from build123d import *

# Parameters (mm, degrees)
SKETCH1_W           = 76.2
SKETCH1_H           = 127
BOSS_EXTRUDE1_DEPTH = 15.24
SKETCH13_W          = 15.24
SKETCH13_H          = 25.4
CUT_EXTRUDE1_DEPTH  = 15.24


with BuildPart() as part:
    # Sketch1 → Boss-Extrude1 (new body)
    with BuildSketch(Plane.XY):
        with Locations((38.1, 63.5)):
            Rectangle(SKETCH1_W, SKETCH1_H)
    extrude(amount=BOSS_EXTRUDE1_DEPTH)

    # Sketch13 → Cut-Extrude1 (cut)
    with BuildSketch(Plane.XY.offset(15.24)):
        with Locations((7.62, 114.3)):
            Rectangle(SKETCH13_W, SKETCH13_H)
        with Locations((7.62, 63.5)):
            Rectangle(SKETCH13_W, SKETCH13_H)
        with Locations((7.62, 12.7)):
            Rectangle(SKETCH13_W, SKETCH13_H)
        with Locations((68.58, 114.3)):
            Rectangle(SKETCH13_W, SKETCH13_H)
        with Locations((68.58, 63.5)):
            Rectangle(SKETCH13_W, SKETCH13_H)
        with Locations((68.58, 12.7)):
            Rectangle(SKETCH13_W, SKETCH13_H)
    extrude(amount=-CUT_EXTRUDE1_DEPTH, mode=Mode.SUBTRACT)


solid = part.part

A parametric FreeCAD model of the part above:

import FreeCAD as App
import Part
import Sketcher

V = App.Vector
Q = App.Units.Quantity


def add_polygon(sketch, points):
    """Adds a closed chain of lines whose ends are joined by coincident constraints."""
    first, n = sketch.GeometryCount, len(points)
    for a, b in zip(points, points[1:] + points[:1]):
        sketch.addGeometry(Part.LineSegment(App.Vector(*a, 0), App.Vector(*b, 0)), False)
    for i in range(n):
        sketch.addConstraint(Sketcher.Constraint("Coincident", first + i, 2, first + (i + 1) % n, 1))

doc = App.newDocument("Part")
body = doc.addObject("PartDesign::Body", "Body")

# Sketch on XY plane
sketch1 = body.newObject("Sketcher::SketchObject", "Sketch")
sketch1.AttachmentSupport = (doc.getObject("XY_Plane"), [""])
sketch1.MapMode = "FlatFace"
add_polygon(sketch1, [(0, 127), (0, 0), (76, 0), (76, 127)])  # lines 0-3
sketch1.addConstraint([
    Sketcher.Constraint("Vertical", 0),
    Sketcher.Constraint("Horizontal", 1),
    Sketcher.Constraint("Vertical", 2),
    Sketcher.Constraint("Horizontal", 3),
    Sketcher.Constraint("Coincident", 0, 2, -1, 1),
    Sketcher.Constraint("DistanceX", 1, 1, 1, 2, Q("3 in")),
    Sketcher.Constraint("DistanceY", 0, 2, 0, 1, Q("5 in")),
])
pad1 = body.newObject("PartDesign::Pad", "Pad")
pad1.Profile = sketch1
pad1.Length = Q("0.6 in")

# Sketch on XY plane
sketch2 = body.newObject("Sketcher::SketchObject", "Sketch001")
sketch2.AttachmentSupport = (doc.getObject("XY_Plane"), [""])
sketch2.MapMode = "FlatFace"
sketch2.AttachmentOffset = App.Placement(V(0, 0, 0.6 * 25.4), App.Rotation())
add_polygon(sketch2, [(0, 127), (0, 102), (15, 102), (15, 127)])  # lines 0-3
add_polygon(sketch2, [(0, 76), (0, 51), (15, 51), (15, 76)])  # lines 4-7
add_polygon(sketch2, [(0, 25), (0, 0), (15, 0), (15, 25)])  # lines 8-11
add_polygon(sketch2, [(61, 127), (61, 102), (76, 102), (76, 127)])  # lines 12-15
add_polygon(sketch2, [(61, 76), (61, 51), (76, 51), (76, 76)])  # lines 16-19
add_polygon(sketch2, [(61, 25), (61, 0), (76, 0), (76, 25)])  # lines 20-23
sketch2.addConstraint([
    Sketcher.Constraint("Vertical", 0),
    Sketcher.Constraint("Horizontal", 1),
    Sketcher.Constraint("Vertical", 2),
    Sketcher.Constraint("Horizontal", 3),
    Sketcher.Constraint("Vertical", 4),
    Sketcher.Constraint("Horizontal", 5),
    Sketcher.Constraint("Vertical", 6),
    Sketcher.Constraint("Horizontal", 7),
    Sketcher.Constraint("Vertical", 8),
    Sketcher.Constraint("Horizontal", 9),
    Sketcher.Constraint("Vertical", 10),
    Sketcher.Constraint("Horizontal", 11),
    Sketcher.Constraint("Vertical", 12),
    Sketcher.Constraint("Horizontal", 13),
    Sketcher.Constraint("Vertical", 14),
    Sketcher.Constraint("Horizontal", 15),
    Sketcher.Constraint("Vertical", 16),
    Sketcher.Constraint("Horizontal", 17),
    Sketcher.Constraint("Vertical", 18),
    Sketcher.Constraint("Horizontal", 19),
    Sketcher.Constraint("Vertical", 20),
    Sketcher.Constraint("Horizontal", 21),
    Sketcher.Constraint("Vertical", 22),
    Sketcher.Constraint("Horizontal", 23),
    Sketcher.Constraint("Coincident", 8, 2, -1, 1),
    Sketcher.Constraint("PointOnObject", 0, 2, -2),
    Sketcher.Constraint("PointOnObject", 4, 2, -2),
    Sketcher.Constraint("PointOnObject", 20, 2, -1),
    Sketcher.Constraint("Horizontal", 1, 2, 12, 2),
    Sketcher.Constraint("Horizontal", 3, 2, 14, 2),
    Sketcher.Constraint("Horizontal", 5, 2, 16, 2),
    Sketcher.Constraint("Horizontal", 7, 2, 18, 2),
    Sketcher.Constraint("Horizontal", 11, 2, 22, 2),
    Sketcher.Constraint("Vertical", 2, 2, 5, 2),
    Sketcher.Constraint("Vertical", 6, 2, 9, 2),
    Sketcher.Constraint("Vertical", 15, 2, 16, 2),
    Sketcher.Constraint("Vertical", 14, 2, 17, 2),
    Sketcher.Constraint("Vertical", 19, 2, 20, 2),
    Sketcher.Constraint("Vertical", 18, 2, 21, 2),
    Sketcher.Constraint("Equal", 11, 13),
    Sketcher.Constraint("Equal", 2, 4),
    Sketcher.Constraint("Equal", 6, 8),
    Sketcher.Constraint("DistanceY", 0, 2, 0, 1, Q("1 in")),
    Sketcher.Constraint("DistanceX", 1, 1, 1, 2, Q("0.6 in")),
    Sketcher.Constraint("DistanceY", -1, 1, 0, 2, Q("4 in")),
    Sketcher.Constraint("DistanceY", -1, 1, 4, 2, Q("2 in")),
    Sketcher.Constraint("DistanceX", -1, 1, 13, 2, Q("3 in")),
])
pocket1 = body.newObject("PartDesign::Pocket", "Pocket")
pocket1.Profile = sketch2
pocket1.Length = Q("0.6 in")

doc.recompute()
